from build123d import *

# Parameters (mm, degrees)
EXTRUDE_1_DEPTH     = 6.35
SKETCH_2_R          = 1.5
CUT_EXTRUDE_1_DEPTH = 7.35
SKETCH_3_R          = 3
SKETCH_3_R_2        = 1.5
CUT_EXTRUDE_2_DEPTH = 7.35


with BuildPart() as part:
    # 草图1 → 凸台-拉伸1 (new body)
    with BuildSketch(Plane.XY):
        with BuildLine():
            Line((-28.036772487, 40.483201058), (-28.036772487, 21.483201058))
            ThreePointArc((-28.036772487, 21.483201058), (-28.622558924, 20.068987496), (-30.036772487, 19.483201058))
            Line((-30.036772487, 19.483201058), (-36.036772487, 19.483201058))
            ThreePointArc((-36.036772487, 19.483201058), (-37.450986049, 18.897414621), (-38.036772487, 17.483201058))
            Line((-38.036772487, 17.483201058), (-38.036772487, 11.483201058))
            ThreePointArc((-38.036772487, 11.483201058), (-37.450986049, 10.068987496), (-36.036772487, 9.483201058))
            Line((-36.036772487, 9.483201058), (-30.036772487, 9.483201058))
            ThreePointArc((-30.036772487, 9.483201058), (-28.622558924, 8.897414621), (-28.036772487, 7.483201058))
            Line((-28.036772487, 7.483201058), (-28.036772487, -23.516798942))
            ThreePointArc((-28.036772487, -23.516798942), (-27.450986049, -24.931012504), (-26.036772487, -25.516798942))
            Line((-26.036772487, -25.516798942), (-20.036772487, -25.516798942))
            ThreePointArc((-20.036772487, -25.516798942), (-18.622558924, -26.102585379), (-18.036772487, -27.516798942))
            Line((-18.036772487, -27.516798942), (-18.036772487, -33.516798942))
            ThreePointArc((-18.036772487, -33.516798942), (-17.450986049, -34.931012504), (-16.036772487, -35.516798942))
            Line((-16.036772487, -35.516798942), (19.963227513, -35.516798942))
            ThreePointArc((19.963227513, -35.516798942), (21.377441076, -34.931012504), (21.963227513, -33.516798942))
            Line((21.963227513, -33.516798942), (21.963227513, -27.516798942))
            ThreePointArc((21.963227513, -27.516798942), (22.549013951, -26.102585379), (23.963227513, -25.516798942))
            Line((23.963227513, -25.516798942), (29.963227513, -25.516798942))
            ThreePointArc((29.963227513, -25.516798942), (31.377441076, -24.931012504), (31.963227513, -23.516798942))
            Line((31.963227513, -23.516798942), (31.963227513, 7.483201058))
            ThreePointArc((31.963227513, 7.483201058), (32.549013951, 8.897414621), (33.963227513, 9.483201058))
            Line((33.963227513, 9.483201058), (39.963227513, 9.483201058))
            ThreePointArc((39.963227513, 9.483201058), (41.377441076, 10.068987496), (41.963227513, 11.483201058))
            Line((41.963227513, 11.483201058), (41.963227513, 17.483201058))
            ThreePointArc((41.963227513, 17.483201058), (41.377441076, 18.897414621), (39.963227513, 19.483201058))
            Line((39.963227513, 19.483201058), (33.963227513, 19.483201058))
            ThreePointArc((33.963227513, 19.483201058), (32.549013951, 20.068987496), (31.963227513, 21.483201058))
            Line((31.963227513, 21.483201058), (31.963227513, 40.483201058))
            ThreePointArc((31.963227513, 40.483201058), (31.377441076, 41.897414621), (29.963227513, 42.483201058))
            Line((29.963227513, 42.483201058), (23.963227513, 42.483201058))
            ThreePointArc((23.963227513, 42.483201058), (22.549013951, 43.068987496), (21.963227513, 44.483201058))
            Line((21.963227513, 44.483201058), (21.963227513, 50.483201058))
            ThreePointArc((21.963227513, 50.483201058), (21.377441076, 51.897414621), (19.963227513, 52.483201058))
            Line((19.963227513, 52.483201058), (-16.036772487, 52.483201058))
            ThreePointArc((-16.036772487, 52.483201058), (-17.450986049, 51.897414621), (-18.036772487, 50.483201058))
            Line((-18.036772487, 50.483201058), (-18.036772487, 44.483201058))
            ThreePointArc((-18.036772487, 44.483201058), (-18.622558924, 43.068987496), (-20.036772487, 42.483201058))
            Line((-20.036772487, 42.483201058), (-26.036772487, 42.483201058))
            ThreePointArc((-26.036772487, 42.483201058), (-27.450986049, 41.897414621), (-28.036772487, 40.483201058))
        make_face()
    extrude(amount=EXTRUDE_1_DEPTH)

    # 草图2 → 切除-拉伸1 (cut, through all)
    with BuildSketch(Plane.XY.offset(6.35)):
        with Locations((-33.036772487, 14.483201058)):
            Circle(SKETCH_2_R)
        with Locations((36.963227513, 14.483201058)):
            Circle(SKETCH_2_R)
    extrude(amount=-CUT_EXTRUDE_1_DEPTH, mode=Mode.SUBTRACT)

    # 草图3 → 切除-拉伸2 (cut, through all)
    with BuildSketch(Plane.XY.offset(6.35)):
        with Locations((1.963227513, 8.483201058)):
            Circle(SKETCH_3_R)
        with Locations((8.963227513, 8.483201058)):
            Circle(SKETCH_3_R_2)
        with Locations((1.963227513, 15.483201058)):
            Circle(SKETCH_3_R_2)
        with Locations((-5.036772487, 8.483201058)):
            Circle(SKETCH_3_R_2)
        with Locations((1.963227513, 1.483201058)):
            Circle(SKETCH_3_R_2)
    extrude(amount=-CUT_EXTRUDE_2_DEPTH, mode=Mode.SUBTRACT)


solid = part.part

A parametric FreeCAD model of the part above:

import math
import FreeCAD as App
import Part
import Sketcher
from FreeCAD import Vector

doc = App.newDocument("Part")
body = doc.addObject("PartDesign::Body", "Body")

# Sketch on XY plane
sketch1 = body.newObject("Sketcher::SketchObject", "Sketch")
sketch1.AttachmentSupport = (doc.getObject("XY_Plane"), [""])
sketch1.MapMode = "FlatFace"
sketch1.addGeometry([
    Part.LineSegment(Vector(-28, 40.5, 0), Vector(-28, 21.5, 0)),  # 0
    Part.ArcOfCircle(Part.Circle(Vector(-30, 21.5, 0), Vector(0, 0, 1), 2), math.radians(-90), math.radians(0)),  # 1
    Part.LineSegment(Vector(-30, 19.5, 0), Vector(-36, 19.5, 0)),  # 2
    Part.ArcOfCircle(Part.Circle(Vector(-36, 17.5, 0), Vector(0, 0, 1), 2), math.radians(90), math.radians(180)),  # 3
    Part.LineSegment(Vector(-38, 17.5, 0), Vector(-38, 11.5, 0)),  # 4
    Part.ArcOfCircle(Part.Circle(Vector(-36, 11.5, 0), Vector(0, 0, 1), 2), math.radians(-180), math.radians(-90)),  # 5
    Part.LineSegment(Vector(-36, 9.5, 0), Vector(-30, 9.5, 0)),  # 6
    Part.ArcOfCircle(Part.Circle(Vector(-30, 7.5, 0), Vector(0, 0, 1), 2), math.radians(0), math.radians(90)),  # 7
    Part.LineSegment(Vector(-28, 7.5, 0), Vector(-28, -23.5, 0)),  # 8
    Part.ArcOfCircle(Part.Circle(Vector(-26, -23.5, 0), Vector(0, 0, 1), 2), math.radians(-180), math.radians(-90)),  # 9
    Part.LineSegment(Vector(-26, -25.5, 0), Vector(-20, -25.5, 0)),  # 10
    Part.ArcOfCircle(Part.Circle(Vector(-20, -27.5, 0), Vector(0, 0, 1), 2), math.radians(0), math.radians(90)),  # 11
    Part.LineSegment(Vector(-18, -27.5, 0), Vector(-18, -33.5, 0)),  # 12
    Part.ArcOfCircle(Part.Circle(Vector(-16, -33.5, 0), Vector(0, 0, 1), 2), math.radians(-180), math.radians(-90)),  # 13
    Part.LineSegment(Vector(-16, -35.5, 0), Vector(20, -35.5, 0)),  # 14
    Part.ArcOfCircle(Part.Circle(Vector(20, -33.5, 0), Vector(0, 0, 1), 2), math.radians(-90), math.radians(0)),  # 15
    Part.LineSegment(Vector(22, -33.5, 0), Vector(22, -27.5, 0)),  # 16
    Part.ArcOfCircle(Part.Circle(Vector(24, -27.5, 0), Vector(0, 0, 1), 2), math.radians(90), math.radians(180)),  # 17
    Part.LineSegment(Vector(24, -25.5, 0), Vector(30, -25.5, 0)),  # 18
    Part.ArcOfCircle(Part.Circle(Vector(30, -23.5, 0), Vector(0, 0, 1), 2), math.radians(-90), math.radians(0)),  # 19
    Part.LineSegment(Vector(32, -23.5, 0), Vector(32, 7.5, 0)),  # 20
    Part.ArcOfCircle(Part.Circle(Vector(34, 7.5, 0), Vector(0, 0, 1), 2), math.radians(90), math.radians(180)),  # 21
    Part.LineSegment(Vector(34, 9.5, 0), Vector(40, 9.5, 0)),  # 22
    Part.ArcOfCircle(Part.Circle(Vector(40, 11.5, 0), Vector(0, 0, 1), 2), math.radians(-90), math.radians(0)),  # 23
    Part.LineSegment(Vector(42, 11.5, 0), Vector(42, 17.5, 0)),  # 24
    Part.ArcOfCircle(Part.Circle(Vector(40, 17.5, 0), Vector(0, 0, 1), 2), math.radians(0), math.radians(90)),  # 25
    Part.LineSegment(Vector(40, 19.5, 0), Vector(34, 19.5, 0)),  # 26
    Part.ArcOfCircle(Part.Circle(Vector(34, 21.5, 0), Vector(0, 0, 1), 2), math.radians(-180), math.radians(-90)),  # 27
    Part.LineSegment(Vector(32, 21.5, 0), Vector(32, 40.5, 0)),  # 28
    Part.ArcOfCircle(Part.Circle(Vector(30, 40.5, 0), Vector(0, 0, 1), 2), math.radians(0), math.radians(90)),  # 29
    Part.LineSegment(Vector(30, 42.5, 0), Vector(24, 42.5, 0)),  # 30
    Part.ArcOfCircle(Part.Circle(Vector(24, 44.5, 0), Vector(0, 0, 1), 2), math.radians(-180), math.radians(-90)),  # 31
    Part.LineSegment(Vector(22, 44.5, 0), Vector(22, 50.5, 0)),  # 32
    Part.ArcOfCircle(Part.Circle(Vector(20, 50.5, 0), Vector(0, 0, 1), 2), math.radians(0), math.radians(90)),  # 33
    Part.LineSegment(Vector(20, 52.5, 0), Vector(-16, 52.5, 0)),  # 34
    Part.ArcOfCircle(Part.Circle(Vector(-16, 50.5, 0), Vector(0, 0, 1), 2), math.radians(90), math.radians(180)),  # 35
    Part.LineSegment(Vector(-18, 50.5, 0), Vector(-18, 44.5, 0)),  # 36
    Part.ArcOfCircle(Part.Circle(Vector(-20, 44.5, 0), Vector(0, 0, 1), 2), math.radians(-90), math.radians(0)),  # 37
    Part.LineSegment(Vector(-20, 42.5, 0), Vector(-26, 42.5, 0)),  # 38
    Part.ArcOfCircle(Part.Circle(Vector(-26, 40.5, 0), Vector(0, 0, 1), 2), math.radians(90), math.radians(180)),  # 39
], False)
sketch1.addConstraint([
    Sketcher.Constraint("Tangent", 0, 2, 1, 2),
    Sketcher.Constraint("Tangent", 1, 1, 2, 1),
    Sketcher.Constraint("Tangent", 2, 2, 3, 1),
    Sketcher.Constraint("Tangent", 3, 2, 4, 1),
    Sketcher.Constraint("Tangent", 4, 2, 5, 1),
    Sketcher.Constraint("Tangent", 5, 2, 6, 1),
    Sketcher.Constraint("Tangent", 6, 2, 7, 2),
    Sketcher.Constraint("Tangent", 7, 1, 8, 1),
    Sketcher.Constraint("Tangent", 8, 2, 9, 1),
    Sketcher.Constraint("Tangent", 9, 2, 10, 1),
    Sketcher.Constraint("Tangent", 10, 2, 11, 2),
    Sketcher.Constraint("Tangent", 11, 1, 12, 1),
    Sketcher.Constraint("Tangent", 12, 2, 13, 1),
    Sketcher.Constraint("Tangent", 13, 2, 14, 1),
    Sketcher.Constraint("Tangent", 14, 2, 15, 1),
    Sketcher.Constraint("Tangent", 15, 2, 16, 1),
    Sketcher.Constraint("Tangent", 16, 2, 17, 2),
    Sketcher.Constraint("Tangent", 17, 1, 18, 1),
    Sketcher.Constraint("Tangent", 18, 2, 19, 1),
    Sketcher.Constraint("Tangent", 19, 2, 20, 1),
    Sketcher.Constraint("Tangent", 20, 2, 21, 2),
    Sketcher.Constraint("Tangent", 21, 1, 22, 1),
    Sketcher.Constraint("Tangent", 22, 2, 23, 1),
    Sketcher.Constraint("Tangent", 23, 2, 24, 1),
    Sketcher.Constraint("Tangent", 24, 2, 25, 1),
    Sketcher.Constraint("Tangent", 25, 2, 26, 1),
    Sketcher.Constraint("Tangent", 26, 2, 27, 2),
    Sketcher.Constraint("Tangent", 27, 1, 28, 1),
    Sketcher.Constraint("Tangent", 28, 2, 29, 1),
    Sketcher.Constraint("Tangent", 29, 2, 30, 1),
    Sketcher.Constraint("Tangent", 30, 2, 31, 2),
    Sketcher.Constraint("Tangent", 31, 1, 32, 1),
    Sketcher.Constraint("Tangent", 32, 2, 33, 1),
    Sketcher.Constraint("Tangent", 33, 2, 34, 1),
    Sketcher.Constraint("Tangent", 34, 2, 35, 1),
    Sketcher.Constraint("Tangent", 35, 2, 36, 1),
    Sketcher.Constraint("Tangent", 36, 2, 37, 2),
    Sketcher.Constraint("Tangent", 37, 1, 38, 1),
    Sketcher.Constraint("Tangent", 38, 2, 39, 1),
    Sketcher.Constraint("Tangent", 39, 2, 0, 1),
    Sketcher.Constraint("Vertical", 0),
    Sketcher.Constraint("Horizontal", 2),
    Sketcher.Constraint("Vertical", 4),
    Sketcher.Constraint("Horizontal", 6),
    Sketcher.Constraint("Vertical", 8),
    Sketcher.Constraint("Horizontal", 10),
    Sketcher.Constraint("Vertical", 12),
    Sketcher.Constraint("Horizontal", 14),
    Sketcher.Constraint("Vertical", 16),
    Sketcher.Constraint("Horizontal", 18),
    Sketcher.Constraint("Vertical", 20),
    Sketcher.Constraint("Horizontal", 22),
    Sketcher.Constraint("Vertical", 24),
    Sketcher.Constraint("Horizontal", 26),
    Sketcher.Constraint("Vertical", 28),
    Sketcher.Constraint("Horizontal", 30),
    Sketcher.Constraint("Vertical", 32),
    Sketcher.Constraint("Horizontal", 34),
    Sketcher.Constraint("Vertical", 36),
    Sketcher.Constraint("Horizontal", 38),
    Sketcher.Constraint("Equal", 1, 3),
    Sketcher.Constraint("Equal", 3, 5),
    Sketcher.Constraint("Equal", 5, 7),
    Sketcher.Constraint("Equal", 7, 9),
    Sketcher.Constraint("Equal", 9, 11),
    Sketcher.Constraint("Equal", 11, 13),
    Sketcher.Constraint("Equal", 13, 15),
    Sketcher.Constraint("Equal", 15, 17),
    Sketcher.Constraint("Equal", 17, 19),
    Sketcher.Constraint("Equal", 19, 21),
    Sketcher.Constraint("Equal", 21, 23),
    Sketcher.Constraint("Equal", 23, 25),
    Sketcher.Constraint("Equal", 25, 27),
    Sketcher.Constraint("Equal", 27, 29),
    Sketcher.Constraint("Equal", 29, 31),
    Sketcher.Constraint("Equal", 31, 33),
    Sketcher.Constraint("Equal", 33, 35),
    Sketcher.Constraint("Equal", 35, 37),
    Sketcher.Constraint("Equal", 37, 39),
    Sketcher.Constraint("Horizontal", 11, 3, 17, 3),
    Sketcher.Constraint("Horizontal", 7, 3, 21, 3),
    Sketcher.Constraint("Horizontal", 3, 3, 25, 3),
    Sketcher.Constraint("Horizontal", 31, 3, 37, 3),
    Sketcher.Constraint("Vertical", 1, 3, 7, 3),
    Sketcher.Constraint("Vertical", 21, 3, 27, 3),
    Sketcher.Constraint("Vertical", 17, 3, 31, 3),
    Sketcher.Constraint("Vertical", 13, 3, 35, 3),
    Sketcher.Constraint("Equal", 6, 10),
    Sketcher.Constraint("Equal", 10, 18),
    Sketcher.Constraint("Equal", 18, 22),
    Sketcher.Constraint("Equal", 38, 4),
    Sketcher.Constraint("Equal", 4, 12),
    Sketcher.Constraint("Equal", 24, 32),
    Sketcher.Constraint("Radius", 1, 2.0),
    Sketcher.Constraint("DistanceX", 2, 2, 2, 1, 6.0),
    Sketcher.Constraint("DistanceX", 14, 1, 14, 2, 36.0),
    Sketcher.Constraint("DistanceY", 0, 2, 0, 1, 19.0),
    Sketcher.Constraint("DistanceY", 8, 2, 8, 1, 31.0),
    Sketcher.Constraint("DistanceY", -1, 1, 1, 3, 21.483201),
    Sketcher.Constraint("DistanceX", 1, 3, -1, 1, 30.036772),
])
pad1 = body.newObject("PartDesign::Pad", "Pad")
pad1.Profile = sketch1
pad1.Length = 6.35

# Sketch on XY plane
sketch2 = body.newObject("Sketcher::SketchObject", "Sketch001")
sketch2.AttachmentSupport = (doc.getObject("XY_Plane"), [""])
sketch2.MapMode = "FlatFace"
sketch2.AttachmentOffset = App.Placement(Vector(0, 0, 6.35), App.Rotation())
sketch2.addGeometry([
    Part.Circle(Vector(-33, 14.5, 0), Vector(0, 0, 1), 1.5),
    Part.Circle(Vector(37, 14.5, 0), Vector(0, 0, 1), 1.5),
], False)
sketch2.addConstraint([
    Sketcher.Constraint("Equal", 0, 1),
    Sketcher.Constraint("Horizontal", 0, 3, 1, 3),
    Sketcher.Constraint("Diameter", 0, 3.0),
    Sketcher.Constraint("DistanceX", 0, 3, 1, 3, 70.0),
    Sketcher.Constraint("DistanceY", -1, 1, 0, 3, 14.483201),
    Sketcher.Constraint("DistanceX", 0, 3, -1, 1, 33.036772),
])
pocket1 = body.newObject("PartDesign::Pocket", "Pocket")
pocket1.Profile = sketch2
pocket1.Type = "ThroughAll"

# Sketch on XY plane
sketch3 = body.newObject("Sketcher::SketchObject", "Sketch002")
sketch3.AttachmentSupport = (doc.getObject("XY_Plane"), [""])
sketch3.MapMode = "FlatFace"
sketch3.AttachmentOffset = App.Placement(Vector(0, 0, 6.35), App.Rotation())
sketch3.addGeometry([
    Part.Circle(Vector(2, 8.5, 0), Vector(0, 0, 1), 3),  # 0
    Part.Circle(Vector(9, 8.5, 0), Vector(0, 0, 1), 1.5),  # 1
    Part.Circle(Vector(2, 15.5, 0), Vector(0, 0, 1), 1.5),  # 2
    Part.Circle(Vector(-5, 8.5, 0), Vector(0, 0, 1), 1.5),  # 3
    Part.Circle(Vector(2, 1.5, 0), Vector(0, 0, 1), 1.5),  # 4
], False)
sketch3.addConstraint([
    Sketcher.Constraint("Equal", 1, 2),
    Sketcher.Constraint("Equal", 2, 3),
    Sketcher.Constraint("Equal", 3, 4),
    Sketcher.Constraint("Horizontal", 0, 3, 1, 3),
    Sketcher.Constraint("Horizontal", 1, 3, 3, 3),
    Sketcher.Constraint("Vertical", 0, 3, 2, 3),
    Sketcher.Constraint("Vertical", 2, 3, 4, 3),
    Sketcher.Constraint("Diameter", 0, 6.0),
    Sketcher.Constraint("Diameter", 1, 3.0),
    Sketcher.Constraint("DistanceX", 0, 3, 1, 3, 7.0),
    Sketcher.Constraint("DistanceY", 0, 3, 2, 3, 7.0),
    Sketcher.Constraint("DistanceX", 3, 3, 0, 3, 7.0),
    Sketcher.Constraint("DistanceY", 4, 3, 0, 3, 7.0),
    Sketcher.Constraint("DistanceY", -1, 1, 0, 3, 8.483201),
    Sketcher.Constraint("DistanceX", -1, 1, 0, 3, 1.963228),
])
pocket2 = body.newObject("PartDesign::Pocket", "Pocket001")
pocket2.Profile = sketch3
pocket2.Type = "ThroughAll"

doc.recompute()
